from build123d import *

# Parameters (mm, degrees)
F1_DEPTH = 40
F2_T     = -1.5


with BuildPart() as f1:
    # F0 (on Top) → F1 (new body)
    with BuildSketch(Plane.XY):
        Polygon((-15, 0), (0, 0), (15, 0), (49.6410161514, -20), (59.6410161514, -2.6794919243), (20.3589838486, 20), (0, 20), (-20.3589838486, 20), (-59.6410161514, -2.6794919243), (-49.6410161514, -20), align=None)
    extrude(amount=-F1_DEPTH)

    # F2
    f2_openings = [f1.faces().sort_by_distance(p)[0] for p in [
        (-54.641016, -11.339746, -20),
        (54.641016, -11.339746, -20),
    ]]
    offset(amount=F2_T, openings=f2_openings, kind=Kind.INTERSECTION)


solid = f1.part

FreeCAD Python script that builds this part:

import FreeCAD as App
import Part
import Sketcher

V = App.Vector
Q = App.Units.Quantity


def faces_at(feature, points):
    """Names of the faces that lie closest to the given points."""
    faces = feature.Shape.Faces
    near = lambda p: min(range(len(faces)), key=lambda i: faces[i].distToShape(Part.Vertex(*p))[0])
    return sorted({f"Face{near(p) + 1}" for p in points})

doc = App.newDocument("Part")
body = doc.addObject("PartDesign::Body", "Body")

# Sketch on XY plane
sketch1 = body.newObject("Sketcher::SketchObject", "Sketch")
sketch1.AttachmentSupport = (doc.getObject("XY_Plane"), [""])
sketch1.MapMode = "FlatFace"
sketch1.addGeometry([
    Part.LineSegment(V(-15, 0, 0), V(15, 0, 0)),  # 0
    Part.LineSegment(V(15, 0, 0), V(49.641016, -20, 0)),  # 1
    Part.LineSegment(V(49.641016, -20, 0), V(59.641016, -2.679492, 0)),  # 2
    Part.LineSegment(V(59.641016, -2.679492, 0), V(20.358984, 20, 0)),  # 3
    Part.LineSegment(V(20.358984, 20, 0), V(-20.358984, 20, 0)),  # 4
    Part.LineSegment(V(-20.358984, 20, 0), V(-59.641016, -2.679492, 0)),  # 5
    Part.LineSegment(V(-59.641016, -2.679492, 0), V(-49.641016, -20, 0)),  # 6
    Part.LineSegment(V(-49.641016, -20, 0), V(-15, 0, 0)),  # 7
], False)
sketch1.addConstraint([
    Sketcher.Constraint("Coincident", 0, 2, 1, 1),
    Sketcher.Constraint("Coincident", 1, 2, 2, 1),
    Sketcher.Constraint("Coincident", 2, 2, 3, 1),
    Sketcher.Constraint("Coincident", 3, 2, 4, 1),
    Sketcher.Constraint("Coincident", 4, 2, 5, 1),
    Sketcher.Constraint("Coincident", 5, 2, 6, 1),
    Sketcher.Constraint("Coincident", 6, 2, 7, 1),
    Sketcher.Constraint("Coincident", 7, 2, 0, 1),
    Sketcher.Constraint("Horizontal", 0),
    Sketcher.Constraint("Horizontal", 4),
    Sketcher.Constraint("Symmetric", 0, 2, 7, 2, -1, 1),
    Sketcher.Constraint("Symmetric", 2, 2, 5, 2, -2),
    Sketcher.Constraint("Symmetric", 1, 2, 6, 2, -2),
    Sketcher.Constraint("Perpendicular", 1, 2),
    Sketcher.Constraint("Perpendicular", 2, 3),
    Sketcher.Constraint("Perpendicular", 5, 6),
    Sketcher.Constraint("DistanceX", 0, 1, 0, 2, Q("30 mm")),
    Sketcher.Constraint("Angle", 1, Q("-30 deg")),
    Sketcher.Constraint("Distance", 1, Q("40 mm")),
    Sketcher.Constraint("Distance", 2, Q("20 mm")),
    Sketcher.Constraint("DistanceY", -1, 1, 3, 2, Q("20 mm")),
])
pad1 = body.newObject("PartDesign::Pad", "Pad")
pad1.Profile = sketch1
pad1.Length = 40
pad1.Reversed = True
doc.recompute()

thickness = body.newObject("PartDesign::Thickness", "Thickness")
thickness.Base = (pad1, faces_at(pad1, [(-54.641, -11.34, -20), (54.641, -11.34, -20)]))
thickness.Value = 1.5
thickness.Reversed = True
thickness.Join = "Intersection"

doc.recompute()
